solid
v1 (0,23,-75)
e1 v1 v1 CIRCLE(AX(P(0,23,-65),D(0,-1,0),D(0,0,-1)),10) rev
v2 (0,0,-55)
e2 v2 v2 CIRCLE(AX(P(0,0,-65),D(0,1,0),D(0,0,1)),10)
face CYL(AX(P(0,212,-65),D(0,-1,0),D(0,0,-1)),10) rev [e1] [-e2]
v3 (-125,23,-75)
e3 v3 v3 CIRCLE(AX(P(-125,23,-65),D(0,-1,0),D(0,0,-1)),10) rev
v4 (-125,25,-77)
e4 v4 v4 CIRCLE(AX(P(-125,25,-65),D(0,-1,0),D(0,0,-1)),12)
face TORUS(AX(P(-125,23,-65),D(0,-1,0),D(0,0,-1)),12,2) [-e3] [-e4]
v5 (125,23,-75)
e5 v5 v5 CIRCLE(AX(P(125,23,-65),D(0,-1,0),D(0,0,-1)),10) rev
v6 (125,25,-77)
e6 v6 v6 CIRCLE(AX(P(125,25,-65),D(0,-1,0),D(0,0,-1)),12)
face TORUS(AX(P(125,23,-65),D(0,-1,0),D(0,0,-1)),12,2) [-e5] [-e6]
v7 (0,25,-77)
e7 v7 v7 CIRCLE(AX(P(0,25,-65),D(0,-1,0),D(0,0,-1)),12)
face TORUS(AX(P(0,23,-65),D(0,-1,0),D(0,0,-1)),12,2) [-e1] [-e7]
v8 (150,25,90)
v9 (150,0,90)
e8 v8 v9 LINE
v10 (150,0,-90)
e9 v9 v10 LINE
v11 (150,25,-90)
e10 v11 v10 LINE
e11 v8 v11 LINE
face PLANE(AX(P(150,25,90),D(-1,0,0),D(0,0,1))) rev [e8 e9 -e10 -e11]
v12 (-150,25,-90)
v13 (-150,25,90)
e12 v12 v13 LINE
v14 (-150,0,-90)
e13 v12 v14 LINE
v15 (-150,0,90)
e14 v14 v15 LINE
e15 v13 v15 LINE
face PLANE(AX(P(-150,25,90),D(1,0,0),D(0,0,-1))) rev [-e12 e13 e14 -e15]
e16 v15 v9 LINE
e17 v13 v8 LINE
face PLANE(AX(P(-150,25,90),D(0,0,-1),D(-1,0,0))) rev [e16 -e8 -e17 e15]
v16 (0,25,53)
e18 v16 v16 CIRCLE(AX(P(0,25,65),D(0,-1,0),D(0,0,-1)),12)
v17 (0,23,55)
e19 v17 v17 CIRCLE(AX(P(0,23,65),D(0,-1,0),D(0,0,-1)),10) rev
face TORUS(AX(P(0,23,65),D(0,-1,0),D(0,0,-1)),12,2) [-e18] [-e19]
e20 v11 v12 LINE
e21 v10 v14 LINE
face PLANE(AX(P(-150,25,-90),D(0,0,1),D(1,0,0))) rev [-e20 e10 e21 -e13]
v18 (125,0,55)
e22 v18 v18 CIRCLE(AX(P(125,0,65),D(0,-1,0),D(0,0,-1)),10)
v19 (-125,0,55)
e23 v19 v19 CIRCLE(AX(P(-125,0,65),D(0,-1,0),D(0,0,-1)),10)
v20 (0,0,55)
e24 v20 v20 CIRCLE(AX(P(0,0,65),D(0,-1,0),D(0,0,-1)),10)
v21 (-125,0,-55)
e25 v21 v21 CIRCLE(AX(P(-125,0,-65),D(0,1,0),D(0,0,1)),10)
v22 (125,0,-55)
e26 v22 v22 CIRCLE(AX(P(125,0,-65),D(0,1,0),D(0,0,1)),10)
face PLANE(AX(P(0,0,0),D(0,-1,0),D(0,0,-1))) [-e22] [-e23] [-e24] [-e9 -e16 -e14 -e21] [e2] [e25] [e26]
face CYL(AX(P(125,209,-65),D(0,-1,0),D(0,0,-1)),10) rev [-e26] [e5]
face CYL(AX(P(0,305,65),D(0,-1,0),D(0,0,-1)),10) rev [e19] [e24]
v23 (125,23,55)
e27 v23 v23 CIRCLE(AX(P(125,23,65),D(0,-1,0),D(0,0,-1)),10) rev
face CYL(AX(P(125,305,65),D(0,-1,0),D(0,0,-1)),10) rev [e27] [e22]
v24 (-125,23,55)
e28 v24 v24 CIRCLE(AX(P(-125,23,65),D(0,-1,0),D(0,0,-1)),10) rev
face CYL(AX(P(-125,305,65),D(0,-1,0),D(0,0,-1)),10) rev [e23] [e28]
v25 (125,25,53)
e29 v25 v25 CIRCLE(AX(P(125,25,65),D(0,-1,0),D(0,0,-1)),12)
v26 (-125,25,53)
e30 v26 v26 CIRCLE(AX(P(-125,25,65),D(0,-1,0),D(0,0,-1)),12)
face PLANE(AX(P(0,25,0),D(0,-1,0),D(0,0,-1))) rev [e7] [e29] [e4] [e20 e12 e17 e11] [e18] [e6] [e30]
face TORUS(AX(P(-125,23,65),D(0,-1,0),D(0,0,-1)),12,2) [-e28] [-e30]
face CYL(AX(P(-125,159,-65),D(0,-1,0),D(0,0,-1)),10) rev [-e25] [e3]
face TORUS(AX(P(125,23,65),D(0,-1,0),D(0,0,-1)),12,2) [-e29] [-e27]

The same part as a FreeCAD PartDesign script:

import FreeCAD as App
import Part
import Sketcher

V = App.Vector


def edges_at(feature, points):
    """Names of the edges that pass closest to the given points."""
    edges = feature.Shape.Edges
    near = lambda p: min(range(len(edges)), key=lambda i: edges[i].distToShape(Part.Vertex(*p))[0])
    return sorted({f"Edge{near(p) + 1}" for p in points})


def add_polygon(sketch, points):
    """Adds a closed chain of lines whose ends are joined by coincident constraints."""
    first, n = sketch.GeometryCount, len(points)
    for a, b in zip(points, points[1:] + points[:1]):
        sketch.addGeometry(Part.LineSegment(App.Vector(*a, 0), App.Vector(*b, 0)), False)
    for i in range(n):
        sketch.addConstraint(Sketcher.Constraint("Coincident", first + i, 2, first + (i + 1) % n, 1))

doc = App.newDocument("Part")
params = doc.addObject("Spreadsheet::Sheet", "Params")
for row, (alias, value) in enumerate([
    ("sketch1_width", "300 mm"),
    ("sketch1_height", "180 mm"),
    ("pad1_length", "25 mm"),
    ("sketch2_diameter", "20 mm"),
    ("pocket1_length", "212 mm"),
    ("sketch3_diameter", "20 mm"),
    ("pocket2_length", "159 mm"),
    ("sketch4_diameter", "20 mm"),
    ("pocket3_length", "209 mm"),
    ("sketch5_diameter", "20 mm"),
    ("pocket4_length", "305 mm"),
    ("fillet_radius", "2 mm"),
], start=1):
    params.set(f"A{row}", alias)
    params.set(f"B{row}", "=" + value)
    params.setAlias(f"B{row}", alias)

body = doc.addObject("PartDesign::Body", "Body")

# Sketch on XZ plane
sketch1 = body.newObject("Sketcher::SketchObject", "Sketch")
sketch1.AttachmentSupport = (doc.getObject("XZ_Plane"), [""])
sketch1.MapMode = "FlatFace"
add_polygon(sketch1, [(-150, -90), (-150, 90), (150, 90), (150, -90)])  # lines 0-3
sketch1.addConstraint(Sketcher.Constraint("Vertical", 0))
sketch1.addConstraint(Sketcher.Constraint("Horizontal", 1))
sketch1.addConstraint(Sketcher.Constraint("Vertical", 2))
sketch1.addConstraint(Sketcher.Constraint("Horizontal", 3))
sketch1.addConstraint(Sketcher.Constraint("Symmetric", 0, 2, 2, 2, -1, 1))
sketch1.addConstraint(Sketcher.Constraint("DistanceX", 1, 1, 1, 2, 300.0))
sketch1.addConstraint(Sketcher.Constraint("DistanceY", 0, 1, 0, 2, 180.0))
sketch1.setExpression("Constraints[9]", "Params.sketch1_width")
sketch1.setExpression("Constraints[10]", "Params.sketch1_height")
pad1 = body.newObject("PartDesign::Pad", "Pad")
pad1.Profile = sketch1
pad1.setExpression("Length", "Params.pad1_length")
pad1.Reversed = True

# Sketch on XZ plane
sketch2 = body.newObject("Sketcher::SketchObject", "Sketch001")
sketch2.AttachmentSupport = (doc.getObject("XZ_Plane"), [""])
sketch2.MapMode = "FlatFace"
sketch2.addGeometry(Part.Circle(V(0, -65, 0), V(0, 0, 1), 10), False)
sketch2.addConstraint(Sketcher.Constraint("PointOnObject", 0, 3, -2))
sketch2.addConstraint(Sketcher.Constraint("Diameter", 0, 20.0))
sketch2.addConstraint(Sketcher.Constraint("DistanceY", 0, 3, -1, 1, 65.0))
sketch2.setExpression("Constraints[1]", "Params.sketch2_diameter")
pocket1 = body.newObject("PartDesign::Pocket", "Pocket")
pocket1.Profile = sketch2
pocket1.setExpression("Length", "Params.pocket1_length")

# Sketch on XZ plane
sketch3 = body.newObject("Sketcher::SketchObject", "Sketch002")
sketch3.AttachmentSupport = (doc.getObject("XZ_Plane"), [""])
sketch3.MapMode = "FlatFace"
sketch3.addGeometry(Part.Circle(V(-125, -65, 0), V(0, 0, 1), 10), False)
sketch3.addConstraint(Sketcher.Constraint("Diameter", 0, 20.0))
sketch3.addConstraint(Sketcher.Constraint("DistanceX", 0, 3, -1, 1, 125.0))
sketch3.addConstraint(Sketcher.Constraint("DistanceY", 0, 3, -1, 1, 65.0))
sketch3.setExpression("Constraints[0]", "Params.sketch3_diameter")
pocket2 = body.newObject("PartDesign::Pocket", "Pocket001")
pocket2.Profile = sketch3
pocket2.setExpression("Length", "Params.pocket2_length")

# Sketch on XZ plane
sketch4 = body.newObject("Sketcher::SketchObject", "Sketch003")
sketch4.AttachmentSupport = (doc.getObject("XZ_Plane"), [""])
sketch4.MapMode = "FlatFace"
sketch4.addGeometry(Part.Circle(V(125, -65, 0), V(0, 0, 1), 10), False)
sketch4.addConstraint(Sketcher.Constraint("Diameter", 0, 20.0))
sketch4.addConstraint(Sketcher.Constraint("DistanceX", -1, 1, 0, 3, 125.0))
sketch4.addConstraint(Sketcher.Constraint("DistanceY", 0, 3, -1, 1, 65.0))
sketch4.setExpression("Constraints[0]", "Params.sketch4_diameter")
pocket3 = body.newObject("PartDesign::Pocket", "Pocket002")
pocket3.Profile = sketch4
pocket3.setExpression("Length", "Params.pocket3_length")

# Sketch on XZ plane
sketch5 = body.newObject("Sketcher::SketchObject", "Sketch004")
sketch5.AttachmentSupport = (doc.getObject("XZ_Plane"), [""])
sketch5.MapMode = "FlatFace"
sketch5.addGeometry(Part.Circle(V(125, 65, 0), V(0, 0, 1), 10), False)
sketch5.addGeometry(Part.Circle(V(0, 65, 0), V(0, 0, 1), 10), False)
sketch5.addGeometry(Part.Circle(V(-125, 65, 0), V(0, 0, 1), 10), False)
sketch5.addConstraint(Sketcher.Constraint("Equal", 0, 1))
sketch5.addConstraint(Sketcher.Constraint("Equal", 1, 2))
sketch5.addConstraint(Sketcher.Constraint("Symmetric", 0, 3, 2, 3, -2))
sketch5.addConstraint(Sketcher.Constraint("PointOnObject", 1, 3, -2))
sketch5.addConstraint(Sketcher.Constraint("Horizontal", 0, 3, 1, 3))
sketch5.addConstraint(Sketcher.Constraint("Diameter", 0, 20.0))
sketch5.addConstraint(Sketcher.Constraint("DistanceX", -1, 1, 0, 3, 125.0))
sketch5.addConstraint(Sketcher.Constraint("DistanceY", -1, 1, 0, 3, 65.0))
sketch5.setExpression("Constraints[5]", "Params.sketch5_diameter")
pocket4 = body.newObject("PartDesign::Pocket", "Pocket003")
pocket4.Profile = sketch5
pocket4.setExpression("Length", "Params.pocket4_length")
doc.recompute()

fillet = body.newObject("PartDesign::Fillet", "Fillet")
fillet.Base = (pocket4, edges_at(pocket4, [
    (-10, 25, -65),
    (-135, 25, -65),
    (115, 25, -65),
    (-135, 25, 65),
    (-10, 25, 65),
    (115, 25, 65),
]))
fillet.setExpression("Radius", "Params.fillet_radius")

doc.recompute()
